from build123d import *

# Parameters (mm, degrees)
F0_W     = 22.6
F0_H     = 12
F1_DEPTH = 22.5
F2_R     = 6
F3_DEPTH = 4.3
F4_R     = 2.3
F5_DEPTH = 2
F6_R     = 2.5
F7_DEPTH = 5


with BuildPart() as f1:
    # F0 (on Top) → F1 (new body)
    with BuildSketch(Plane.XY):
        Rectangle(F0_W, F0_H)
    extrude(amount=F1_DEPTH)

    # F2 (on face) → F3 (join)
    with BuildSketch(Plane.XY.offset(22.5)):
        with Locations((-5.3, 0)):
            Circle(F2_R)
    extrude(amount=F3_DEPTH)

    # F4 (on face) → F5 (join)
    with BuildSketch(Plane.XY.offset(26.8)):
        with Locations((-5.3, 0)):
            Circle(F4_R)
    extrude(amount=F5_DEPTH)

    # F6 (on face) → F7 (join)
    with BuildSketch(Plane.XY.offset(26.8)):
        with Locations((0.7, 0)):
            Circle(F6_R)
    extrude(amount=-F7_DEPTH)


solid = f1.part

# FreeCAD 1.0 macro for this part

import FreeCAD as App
import Part
import Sketcher
from FreeCAD import Vector
Q = App.Units.Quantity

doc = App.newDocument("Part")
body = doc.addObject("PartDesign::Body", "Body")

# Sketch on XY plane
sketch1 = doc.addObject("Sketcher::SketchObject", "Sketch")
body.addObject(sketch1)
sketch1.AttachmentSupport = (doc.XY_Plane, [""])
sketch1.MapMode = "FlatFace"
sketch1.addGeometry([
    Part.LineSegment(Vector(-11.3, 6, 0), Vector(-11.3, -6, 0)),
    Part.LineSegment(Vector(-11.3, -6, 0), Vector(11.3, -6, 0)),
    Part.LineSegment(Vector(11.3, -6, 0), Vector(11.3, 6, 0)),
    Part.LineSegment(Vector(11.3, 6, 0), Vector(-11.3, 6, 0)),
], False)
sketch1.addConstraint([
    Sketcher.Constraint("Coincident", 0, 2, 1, 1),
    Sketcher.Constraint("Coincident", 1, 2, 2, 1),
    Sketcher.Constraint("Coincident", 2, 2, 3, 1),
    Sketcher.Constraint("Coincident", 3, 2, 0, 1),
    Sketcher.Constraint("Vertical", 0),
    Sketcher.Constraint("Horizontal", 1),
    Sketcher.Constraint("Vertical", 2),
    Sketcher.Constraint("Horizontal", 3),
    Sketcher.Constraint("Symmetric", 0, 2, 2, 2, -1, 1),
    Sketcher.Constraint("DistanceY", 0, 2, 0, 1, Q("12 mm")),
    Sketcher.Constraint("DistanceX", 1, 1, 1, 2, Q("22.6 mm")),
])
pad1 = doc.addObject("PartDesign::Pad", "Pad")
body.addObject(pad1)
pad1.Profile = sketch1
pad1.Length = 22.5

# Sketch on XY plane
sketch2 = doc.addObject("Sketcher::SketchObject", "Sketch001")
body.addObject(sketch2)
sketch2.AttachmentSupport = (doc.XY_Plane, [""])
sketch2.MapMode = "FlatFace"
sketch2.AttachmentOffset = App.Placement(Vector(0, 0, 22.5), App.Rotation())
sketch2.addGeometry(Part.Circle(Vector(-5.3, 0, 0), Vector(0, 0, 1), 6), False)
sketch2.addConstraint([
    Sketcher.Constraint("PointOnObject", 0, 3, -1),
    Sketcher.Constraint("Diameter", 0, Q("12 mm")),
    Sketcher.Constraint("DistanceX", 0, 3, -1, 1, Q("5.3 mm")),
])
pad2 = doc.addObject("PartDesign::Pad", "Pad001")
body.addObject(pad2)
pad2.Profile = sketch2
pad2.Length = 4.3

# Sketch on XY plane
sketch3 = doc.addObject("Sketcher::SketchObject", "Sketch002")
body.addObject(sketch3)
sketch3.AttachmentSupport = (doc.XY_Plane, [""])
sketch3.MapMode = "FlatFace"
sketch3.AttachmentOffset = App.Placement(Vector(0, 0, 26.8), App.Rotation())
sketch3.addGeometry(Part.Circle(Vector(-5.3, 0, 0), Vector(0, 0, 1), 2.3), False)
sketch3.addConstraint([
    Sketcher.Constraint("PointOnObject", 0, 3, -1),
    Sketcher.Constraint("Diameter", 0, Q("4.6 mm")),
    Sketcher.Constraint("DistanceX", 0, 3, -1, 1, Q("5.3 mm")),
])
pad3 = doc.addObject("PartDesign::Pad", "Pad002")
body.addObject(pad3)
pad3.Profile = sketch3
pad3.Length = 2

# Sketch on XY plane
sketch4 = doc.addObject("Sketcher::SketchObject", "Sketch003")
body.addObject(sketch4)
sketch4.AttachmentSupport = (doc.XY_Plane, [""])
sketch4.MapMode = "FlatFace"
sketch4.AttachmentOffset = App.Placement(Vector(0, 0, 26.8), App.Rotation())
sketch4.addGeometry(Part.Circle(Vector(0.7, 0, 0), Vector(0, 0, 1), 2.5), False)
sketch4.addConstraint([
    Sketcher.Constraint("PointOnObject", 0, 3, -1),
    Sketcher.Constraint("Diameter", 0, Q("5 mm")),
    Sketcher.Constraint("DistanceX", -1, 1, 0, 3, Q("0.7 mm")),
])
pad4 = doc.addObject("PartDesign::Pad", "Pad003")
body.addObject(pad4)
pad4.Profile = sketch4
pad4.Length = 5
pad4.Reversed = True

doc.recompute()
